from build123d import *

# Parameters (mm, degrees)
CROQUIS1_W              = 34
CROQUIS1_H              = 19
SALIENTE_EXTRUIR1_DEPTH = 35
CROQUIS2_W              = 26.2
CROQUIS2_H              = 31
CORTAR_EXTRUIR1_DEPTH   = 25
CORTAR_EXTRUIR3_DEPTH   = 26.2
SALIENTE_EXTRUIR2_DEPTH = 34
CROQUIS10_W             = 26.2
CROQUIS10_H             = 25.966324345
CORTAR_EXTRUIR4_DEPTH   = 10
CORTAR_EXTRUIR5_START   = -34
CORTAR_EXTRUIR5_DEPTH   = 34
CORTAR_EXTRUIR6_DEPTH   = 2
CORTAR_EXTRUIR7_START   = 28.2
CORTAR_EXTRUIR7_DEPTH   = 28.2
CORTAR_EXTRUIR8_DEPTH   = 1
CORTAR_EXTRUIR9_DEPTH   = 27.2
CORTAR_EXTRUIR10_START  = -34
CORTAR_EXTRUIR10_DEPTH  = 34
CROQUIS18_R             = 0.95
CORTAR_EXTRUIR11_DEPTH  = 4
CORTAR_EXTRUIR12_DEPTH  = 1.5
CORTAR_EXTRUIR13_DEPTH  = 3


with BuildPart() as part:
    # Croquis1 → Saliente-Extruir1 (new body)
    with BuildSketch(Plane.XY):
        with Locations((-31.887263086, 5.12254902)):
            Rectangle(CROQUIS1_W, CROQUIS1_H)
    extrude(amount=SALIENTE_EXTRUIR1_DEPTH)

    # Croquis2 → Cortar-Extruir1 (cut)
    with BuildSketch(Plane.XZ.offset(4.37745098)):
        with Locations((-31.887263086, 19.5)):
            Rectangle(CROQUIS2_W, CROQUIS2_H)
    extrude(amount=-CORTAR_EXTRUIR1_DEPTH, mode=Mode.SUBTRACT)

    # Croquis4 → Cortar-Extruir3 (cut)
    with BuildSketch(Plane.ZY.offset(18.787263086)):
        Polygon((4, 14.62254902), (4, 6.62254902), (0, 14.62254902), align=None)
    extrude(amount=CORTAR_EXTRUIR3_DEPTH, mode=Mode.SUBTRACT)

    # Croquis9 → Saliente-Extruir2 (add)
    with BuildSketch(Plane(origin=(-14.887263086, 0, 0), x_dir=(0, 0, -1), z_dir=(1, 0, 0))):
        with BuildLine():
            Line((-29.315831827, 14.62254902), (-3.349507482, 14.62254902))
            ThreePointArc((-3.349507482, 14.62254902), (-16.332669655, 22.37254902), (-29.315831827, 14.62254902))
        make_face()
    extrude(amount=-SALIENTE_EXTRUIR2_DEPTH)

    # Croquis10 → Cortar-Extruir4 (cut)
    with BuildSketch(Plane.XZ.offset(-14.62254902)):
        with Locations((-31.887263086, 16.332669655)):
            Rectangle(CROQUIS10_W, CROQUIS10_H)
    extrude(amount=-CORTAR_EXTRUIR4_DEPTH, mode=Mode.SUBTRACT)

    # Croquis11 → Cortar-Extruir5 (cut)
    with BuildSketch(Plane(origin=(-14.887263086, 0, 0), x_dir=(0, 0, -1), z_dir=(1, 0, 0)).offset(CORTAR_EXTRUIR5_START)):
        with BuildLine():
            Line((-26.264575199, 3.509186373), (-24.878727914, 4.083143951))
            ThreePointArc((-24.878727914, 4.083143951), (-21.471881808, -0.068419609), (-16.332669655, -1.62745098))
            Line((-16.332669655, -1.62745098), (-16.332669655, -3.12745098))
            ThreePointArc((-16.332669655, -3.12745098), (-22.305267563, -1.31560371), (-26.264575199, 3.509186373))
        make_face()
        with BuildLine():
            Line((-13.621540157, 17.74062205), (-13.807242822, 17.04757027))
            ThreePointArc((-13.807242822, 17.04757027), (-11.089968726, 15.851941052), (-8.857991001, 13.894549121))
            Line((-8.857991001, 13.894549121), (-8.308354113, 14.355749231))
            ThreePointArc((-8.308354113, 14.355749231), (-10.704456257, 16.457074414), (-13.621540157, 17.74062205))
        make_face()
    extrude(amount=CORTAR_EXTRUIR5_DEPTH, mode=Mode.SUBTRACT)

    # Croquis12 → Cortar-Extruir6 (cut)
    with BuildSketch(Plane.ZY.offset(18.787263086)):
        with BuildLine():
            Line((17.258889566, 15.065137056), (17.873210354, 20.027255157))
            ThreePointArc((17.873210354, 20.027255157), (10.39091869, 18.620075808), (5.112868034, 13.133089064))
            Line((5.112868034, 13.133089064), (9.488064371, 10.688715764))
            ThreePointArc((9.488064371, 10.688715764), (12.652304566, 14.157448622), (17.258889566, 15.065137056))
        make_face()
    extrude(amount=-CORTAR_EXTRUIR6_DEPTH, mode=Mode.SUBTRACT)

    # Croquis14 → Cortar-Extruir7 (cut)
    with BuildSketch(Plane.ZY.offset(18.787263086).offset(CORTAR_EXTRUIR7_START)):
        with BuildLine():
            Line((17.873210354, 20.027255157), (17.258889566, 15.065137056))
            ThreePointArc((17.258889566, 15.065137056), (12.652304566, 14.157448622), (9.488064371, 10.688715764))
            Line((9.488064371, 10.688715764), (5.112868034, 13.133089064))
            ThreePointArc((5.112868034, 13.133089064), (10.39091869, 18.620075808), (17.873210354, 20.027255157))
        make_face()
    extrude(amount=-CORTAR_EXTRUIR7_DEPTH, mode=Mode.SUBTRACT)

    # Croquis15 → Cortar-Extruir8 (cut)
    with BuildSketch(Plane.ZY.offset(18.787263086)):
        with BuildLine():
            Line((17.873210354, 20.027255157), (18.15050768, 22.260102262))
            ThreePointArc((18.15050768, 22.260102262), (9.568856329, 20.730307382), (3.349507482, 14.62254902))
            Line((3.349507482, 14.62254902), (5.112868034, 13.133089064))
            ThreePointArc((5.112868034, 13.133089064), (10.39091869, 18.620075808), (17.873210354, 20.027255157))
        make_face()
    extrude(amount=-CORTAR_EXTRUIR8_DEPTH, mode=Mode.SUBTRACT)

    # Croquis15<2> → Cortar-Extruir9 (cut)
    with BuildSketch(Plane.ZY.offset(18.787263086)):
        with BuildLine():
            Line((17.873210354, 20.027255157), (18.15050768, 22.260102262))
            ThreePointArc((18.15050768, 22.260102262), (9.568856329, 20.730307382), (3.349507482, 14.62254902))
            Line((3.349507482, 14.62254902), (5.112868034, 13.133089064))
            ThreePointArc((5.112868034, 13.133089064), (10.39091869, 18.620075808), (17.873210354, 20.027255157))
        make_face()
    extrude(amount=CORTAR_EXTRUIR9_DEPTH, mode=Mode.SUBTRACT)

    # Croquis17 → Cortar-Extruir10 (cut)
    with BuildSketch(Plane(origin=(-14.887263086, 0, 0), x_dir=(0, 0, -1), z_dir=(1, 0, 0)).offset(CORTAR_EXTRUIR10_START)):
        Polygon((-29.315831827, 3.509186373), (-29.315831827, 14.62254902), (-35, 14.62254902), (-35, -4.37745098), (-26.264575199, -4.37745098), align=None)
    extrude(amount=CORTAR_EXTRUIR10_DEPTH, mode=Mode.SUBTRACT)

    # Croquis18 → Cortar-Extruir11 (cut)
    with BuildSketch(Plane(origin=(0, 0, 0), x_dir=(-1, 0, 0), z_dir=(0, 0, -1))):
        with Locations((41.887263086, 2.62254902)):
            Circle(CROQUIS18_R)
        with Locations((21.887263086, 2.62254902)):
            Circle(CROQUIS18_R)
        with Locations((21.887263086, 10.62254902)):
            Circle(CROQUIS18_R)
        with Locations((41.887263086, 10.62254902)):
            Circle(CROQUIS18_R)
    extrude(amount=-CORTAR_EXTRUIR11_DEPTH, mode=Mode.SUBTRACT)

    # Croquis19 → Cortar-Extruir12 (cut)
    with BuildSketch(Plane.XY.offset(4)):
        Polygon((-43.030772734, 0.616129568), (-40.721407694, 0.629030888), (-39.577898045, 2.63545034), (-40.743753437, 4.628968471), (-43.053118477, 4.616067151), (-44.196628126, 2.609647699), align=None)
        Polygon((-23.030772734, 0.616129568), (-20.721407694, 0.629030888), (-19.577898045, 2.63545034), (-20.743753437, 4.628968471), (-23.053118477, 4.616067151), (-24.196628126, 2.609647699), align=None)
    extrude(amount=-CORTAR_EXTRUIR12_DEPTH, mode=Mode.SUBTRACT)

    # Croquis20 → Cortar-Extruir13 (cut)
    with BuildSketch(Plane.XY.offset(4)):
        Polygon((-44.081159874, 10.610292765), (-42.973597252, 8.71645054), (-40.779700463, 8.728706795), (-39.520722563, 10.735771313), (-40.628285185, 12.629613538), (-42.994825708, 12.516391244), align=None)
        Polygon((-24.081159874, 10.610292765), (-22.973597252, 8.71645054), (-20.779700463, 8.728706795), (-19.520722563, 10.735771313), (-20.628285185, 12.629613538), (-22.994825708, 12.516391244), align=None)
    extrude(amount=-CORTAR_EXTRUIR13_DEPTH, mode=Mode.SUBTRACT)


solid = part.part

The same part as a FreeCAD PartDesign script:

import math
import FreeCAD as App
import Part
import Sketcher

V = App.Vector
Q = App.Units.Quantity


def add_polygon(sketch, points):
    """Adds a closed chain of lines whose ends are joined by coincident constraints."""
    first, n = sketch.GeometryCount, len(points)
    for a, b in zip(points, points[1:] + points[:1]):
        sketch.addGeometry(Part.LineSegment(App.Vector(*a, 0), App.Vector(*b, 0)), False)
    for i in range(n):
        sketch.addConstraint(Sketcher.Constraint("Coincident", first + i, 2, first + (i + 1) % n, 1))

doc = App.newDocument("Part")
body = doc.addObject("PartDesign::Body", "Body")

# Sketch on XY plane
sketch1 = body.newObject("Sketcher::SketchObject", "Sketch")
sketch1.AttachmentSupport = (doc.getObject("XY_Plane"), [""])
sketch1.MapMode = "FlatFace"
add_polygon(sketch1, [(-49, 15), (-49, -4), (-15, -4), (-15, 15)])  # lines 0-3
sketch1.addConstraint([
    Sketcher.Constraint("Vertical", 0),
    Sketcher.Constraint("Horizontal", 1),
    Sketcher.Constraint("Vertical", 2),
    Sketcher.Constraint("Horizontal", 3),
    Sketcher.Constraint("DistanceX", 1, 1, 1, 2, Q("34 mm")),
    Sketcher.Constraint("DistanceY", 0, 2, 0, 1, Q("19 mm")),
    Sketcher.Constraint("DistanceY", 0, 2, -1, 1, Q("4.377451 mm")),
    Sketcher.Constraint("DistanceX", 0, 2, -1, 1, Q("48.887263 mm")),
])
pad1 = body.newObject("PartDesign::Pad", "Pad")
pad1.Profile = sketch1
pad1.Length = 35

# Sketch on XZ plane
sketch2 = body.newObject("Sketcher::SketchObject", "Sketch001")
sketch2.AttachmentSupport = (doc.getObject("XZ_Plane"), [""])
sketch2.MapMode = "FlatFace"
sketch2.AttachmentOffset = App.Placement(V(0, 0, 4.377451), App.Rotation())
add_polygon(sketch2, [(-45, 35), (-45, 4), (-19, 4), (-19, 35)])  # lines 0-3
sketch2.addConstraint([
    Sketcher.Constraint("Vertical", 0),
    Sketcher.Constraint("Horizontal", 1),
    Sketcher.Constraint("Vertical", 2),
    Sketcher.Constraint("Horizontal", 3),
    Sketcher.Constraint("DistanceY", 0, 2, 0, 1, Q("31 mm")),
    Sketcher.Constraint("DistanceX", 1, 1, 1, 2, Q("26.2 mm")),
    Sketcher.Constraint("DistanceY", -1, 1, 0, 2, Q("4 mm")),
    Sketcher.Constraint("DistanceX", 0, 2, -1, 1, Q("44.987263 mm")),
])
pocket1 = body.newObject("PartDesign::Pocket", "Pocket")
pocket1.Profile = sketch2
pocket1.Length = 25

# Sketch on YZ plane
sketch3 = body.newObject("Sketcher::SketchObject", "Sketch002")
sketch3.AttachmentSupport = (doc.getObject("YZ_Plane"), [""])
sketch3.MapMode = "FlatFace"
sketch3.AttachmentOffset = App.Placement(V(0, 0, -18.787263), App.Rotation())
add_polygon(sketch3, [(6.6, 4), (14.6, 4), (14.6, 0)])  # lines 0-2
sketch3.addConstraint([
    Sketcher.Constraint("Horizontal", 0),
    Sketcher.Constraint("Vertical", 1),
    Sketcher.Constraint("PointOnObject", 1, 2, -1),
    Sketcher.Constraint("DistanceX", 0, 1, 0, 2, Q("8 mm")),
    Sketcher.Constraint("DistanceY", 1, 2, 1, 1, Q("4 mm")),
    Sketcher.Constraint("DistanceX", -1, 1, 0, 2, Q("14.622549 mm")),
])
pocket2 = body.newObject("PartDesign::Pocket", "Pocket001")
pocket2.Profile = sketch3
pocket2.Length = 26.2

# Sketch on YZ plane
sketch4 = body.newObject("Sketcher::SketchObject", "Sketch003")
sketch4.AttachmentSupport = (doc.getObject("YZ_Plane"), [""])
sketch4.MapMode = "FlatFace"
sketch4.AttachmentOffset = App.Placement(V(0, 0, -14.887263), App.Rotation())
sketch4.addGeometry([
    Part.LineSegment(V(15, 29, 0), V(15, 3, 0)),
    Part.ArcOfCircle(Part.Circle(V(8, 16, 0), V(0, 0, 1), 15), math.radians(-62), math.radians(62)),
], False)
sketch4.addConstraint([
    Sketcher.Constraint("Coincident", 0, 1, 1, 2),
    Sketcher.Constraint("Coincident", 1, 1, 0, 2),
    Sketcher.Constraint("Vertical", 0),
    Sketcher.Constraint("Radius", 1, Q("14.75 mm")),
    Sketcher.Constraint("DistanceX", 1, 3, 0, 1, Q("7 mm")),
    Sketcher.Constraint("DistanceX", -1, 1, 1, 3, Q("7.622549 mm")),
    Sketcher.Constraint("DistanceY", -1, 1, 1, 3, Q("16.33267 mm")),
])
pad2 = body.newObject("PartDesign::Pad", "Pad001")
pad2.Profile = sketch4
pad2.Length = 34
pad2.Reversed = True

# Sketch on XZ plane
sketch5 = body.newObject("Sketcher::SketchObject", "Sketch004")
sketch5.AttachmentSupport = (doc.getObject("XZ_Plane"), [""])
sketch5.MapMode = "FlatFace"
sketch5.AttachmentOffset = App.Placement(V(0, 0, -14.622549), App.Rotation())
add_polygon(sketch5, [(-45, 29), (-45, 3), (-19, 3), (-19, 29)])  # lines 0-3
sketch5.addConstraint([
    Sketcher.Constraint("Vertical", 0),
    Sketcher.Constraint("Horizontal", 1),
    Sketcher.Constraint("Vertical", 2),
    Sketcher.Constraint("Horizontal", 3),
    Sketcher.Constraint("DistanceX", 1, 1, 1, 2, Q("26.2 mm")),
    Sketcher.Constraint("DistanceY", 0, 2, 0, 1, Q("25.966324 mm")),
    Sketcher.Constraint("DistanceY", -1, 1, 2, 2, Q("29.315832 mm")),
    Sketcher.Constraint("DistanceX", 0, 2, -1, 1, Q("44.987263 mm")),
])
pocket3 = body.newObject("PartDesign::Pocket", "Pocket002")
pocket3.Profile = sketch5
pocket3.Length = 10

# Sketch on YZ plane
sketch6 = body.newObject("Sketcher::SketchObject", "Sketch005")
sketch6.AttachmentSupport = (doc.getObject("YZ_Plane"), [""])
sketch6.MapMode = "FlatFace"
sketch6.AttachmentOffset = App.Placement(V(0, 0, -48.887263), App.Rotation())
sketch6.addGeometry([
    Part.LineSegment(V(4.1, 24.9, 0), V(3.5, 26.3, 0)),  # 0
    Part.ArcOfCircle(Part.Circle(V(7.6, 16.3, 0), V(0, 0, 1), 10.8), math.radians(112), math.radians(180)),  # 1
    Part.LineSegment(V(-3.1, 16.3, 0), V(-1.6, 16.3, 0)),  # 2
    Part.ArcOfCircle(Part.Circle(V(7.6, 16.3, 0), V(0, 0, 1), 9.2), math.radians(112), math.radians(180)),  # 3
    Part.LineSegment(V(17.7, 13.6, 0), V(17, 13.8, 0)),  # 4
    Part.ArcOfCircle(Part.Circle(V(7.6, 16.3, 0), V(0, 0, 1), 9.8), math.radians(-50), math.radians(-15)),  # 5
    Part.LineSegment(V(13.9, 8.9, 0), V(14.4, 8.3, 0)),  # 6
    Part.ArcOfCircle(Part.Circle(V(7.6, 16.3, 0), V(0, 0, 1), 10.5), math.radians(-50), math.radians(-15)),  # 7
], False)
sketch6.addConstraint([
    Sketcher.Constraint("Coincident", 0, 2, 1, 1),
    Sketcher.Constraint("Coincident", 1, 2, 2, 1),
    Sketcher.Constraint("Coincident", 2, 2, 3, 2),
    Sketcher.Constraint("Coincident", 3, 1, 0, 1),
    Sketcher.Constraint("Coincident", 4, 2, 5, 2),
    Sketcher.Constraint("Coincident", 5, 1, 6, 1),
    Sketcher.Constraint("Coincident", 6, 2, 7, 1),
    Sketcher.Constraint("Coincident", 7, 2, 4, 1),
    Sketcher.Constraint("Horizontal", 2),
    Sketcher.Constraint("Coincident", 3, 3, 1, 3),
    Sketcher.Constraint("Coincident", 5, 3, 1, 3),
    Sketcher.Constraint("Coincident", 7, 3, 1, 3),
    Sketcher.Constraint("Horizontal", 7, 3, 1, 2),
    Sketcher.Constraint("Angle", 4, Q("165 deg")),
    Sketcher.Constraint("Angle", 6, Q("-50 deg")),
    Sketcher.Constraint("Radius", 1, Q("10.75 mm")),
    Sketcher.Constraint("Radius", 3, Q("9.25 mm")),
    Sketcher.Constraint("Radius", 7, Q("10.475 mm")),
    Sketcher.Constraint("Radius", 5, Q("9.7575 mm")),
    Sketcher.Constraint("DistanceX", 1, 3, 5, 1, Q("6.272 mm")),
    Sketcher.Constraint("DistanceX", -1, 1, 1, 3, Q("7.622549 mm")),
    Sketcher.Constraint("DistanceY", -1, 1, 1, 3, Q("16.33267 mm")),
    Sketcher.Constraint("DistanceX", -1, 1, 4, 2, Q("17.04757 mm")),
    Sketcher.Constraint("DistanceY", 7, 3, 3, 1, Q("8.546058 mm")),
    Sketcher.Constraint("DistanceX", -1, 1, 0, 2, Q("3.509186 mm")),
])
pocket4 = body.newObject("PartDesign::Pocket", "Pocket003")
pocket4.Profile = sketch6
pocket4.Length = 34
pocket4.Reversed = True

# Sketch on YZ plane
sketch7 = body.newObject("Sketcher::SketchObject", "Sketch006")
sketch7.AttachmentSupport = (doc.getObject("YZ_Plane"), [""])
sketch7.MapMode = "FlatFace"
sketch7.AttachmentOffset = App.Placement(V(0, 0, -18.787263), App.Rotation())
sketch7.addGeometry([
    Part.LineSegment(V(15, 17, 0), V(20, 18, 0)),
    Part.ArcOfCircle(Part.Circle(V(8, 16, 0), V(0, 0, 1), 13), math.radians(-64), math.radians(7)),
    Part.LineSegment(V(13, 5, 0), V(11, 9, 0)),
    Part.ArcOfCircle(Part.Circle(V(8, 16, 0), V(0, 0, 1), 8), math.radians(-66), math.radians(7)),
], False)
sketch7.addConstraint([
    Sketcher.Constraint("Coincident", 0, 2, 1, 2),
    Sketcher.Constraint("Coincident", 1, 1, 2, 1),
    Sketcher.Constraint("Coincident", 2, 2, 3, 1),
    Sketcher.Constraint("Coincident", 3, 2, 0, 1),
    Sketcher.Constraint("Coincident", 3, 3, 1, 3),
    Sketcher.Constraint("Radius", 1, Q("12.5 mm")),
    Sketcher.Constraint("Radius", 3, Q("7.5 mm")),
    Sketcher.Constraint("DistanceY", 1, 1, 3, 3, Q("11.219802 mm")),
    Sketcher.Constraint("DistanceX", -1, 1, 1, 3, Q("7.622549 mm")),
    Sketcher.Constraint("DistanceY", -1, 1, 1, 3, Q("16.33267 mm")),
    Sketcher.Constraint("DistanceY", -1, 1, 0, 2, Q("17.87321 mm")),
    Sketcher.Constraint("DistanceY", -1, 1, 3, 2, Q("17.25889 mm")),
    Sketcher.Constraint("DistanceX", 2, 2, 0, 2, Q("9.338539 mm")),
])
pocket5 = body.newObject("PartDesign::Pocket", "Pocket004")
pocket5.Profile = sketch7
pocket5.Length = 2
pocket5.Reversed = True

# Sketch on YZ plane
sketch8 = body.newObject("Sketcher::SketchObject", "Sketch007")
sketch8.AttachmentSupport = (doc.getObject("YZ_Plane"), [""])
sketch8.MapMode = "FlatFace"
sketch8.AttachmentOffset = App.Placement(V(0, 0, -46.987263), App.Rotation())
sketch8.addGeometry([
    Part.LineSegment(V(15, 17, 0), V(20, 18, 0)),
    Part.ArcOfCircle(Part.Circle(V(8, 16, 0), V(0, 0, 1), 13), math.radians(-64), math.radians(7)),
    Part.LineSegment(V(13, 5, 0), V(11, 9, 0)),
    Part.ArcOfCircle(Part.Circle(V(8, 16, 0), V(0, 0, 1), 8), math.radians(-66), math.radians(7)),
], False)
sketch8.addConstraint([
    Sketcher.Constraint("Coincident", 0, 2, 1, 2),
    Sketcher.Constraint("Coincident", 1, 1, 2, 1),
    Sketcher.Constraint("Coincident", 2, 2, 3, 1),
    Sketcher.Constraint("Coincident", 3, 2, 0, 1),
    Sketcher.Constraint("Coincident", 3, 3, 1, 3),
    Sketcher.Constraint("Radius", 1, Q("12.5 mm")),
    Sketcher.Constraint("Radius", 3, Q("7.5 mm")),
    Sketcher.Constraint("DistanceY", 1, 1, 3, 3, Q("11.219802 mm")),
    Sketcher.Constraint("DistanceX", -1, 1, 1, 3, Q("7.622549 mm")),
    Sketcher.Constraint("DistanceY", -1, 1, 1, 3, Q("16.33267 mm")),
    Sketcher.Constraint("DistanceY", -1, 1, 0, 2, Q("17.87321 mm")),
    Sketcher.Constraint("DistanceY", -1, 1, 3, 2, Q("17.25889 mm")),
    Sketcher.Constraint("DistanceX", 2, 2, 0, 2, Q("9.338539 mm")),
])
pocket6 = body.newObject("PartDesign::Pocket", "Pocket005")
pocket6.Profile = sketch8
pocket6.Length = 28.2
pocket6.Reversed = True

# Sketch on YZ plane
sketch9 = body.newObject("Sketcher::SketchObject", "Sketch008")
sketch9.AttachmentSupport = (doc.getObject("YZ_Plane"), [""])
sketch9.MapMode = "FlatFace"
sketch9.AttachmentOffset = App.Placement(V(0, 0, -18.787263), App.Rotation())
sketch9.addGeometry([
    Part.LineSegment(V(20, 17.9, 0), V(22.3, 18.2, 0)),
    Part.ArcOfCircle(Part.Circle(V(7.6, 16.3, 0), V(0, 0, 1), 14.8), math.radians(-62), math.radians(7)),
    Part.LineSegment(V(14.6, 3.3, 0), V(13.1, 5.1, 0)),
    Part.ArcOfCircle(Part.Circle(V(7.6, 16.3, 0), V(0, 0, 1), 12.5), math.radians(-64), math.radians(7)),
], False)
sketch9.addConstraint([
    Sketcher.Constraint("Coincident", 0, 2, 1, 2),
    Sketcher.Constraint("Coincident", 1, 1, 2, 1),
    Sketcher.Constraint("Coincident", 2, 2, 3, 1),
    Sketcher.Constraint("Coincident", 3, 2, 0, 1),
    Sketcher.Constraint("Coincident", 3, 3, 1, 3),
    Sketcher.Constraint("Radius", 3, Q("12.5 mm")),
    Sketcher.Constraint("Radius", 1, Q("14.75 mm")),
    Sketcher.Constraint("DistanceX", 3, 3, 1, 1, Q("7 mm")),
    Sketcher.Constraint("DistanceY", 1, 1, 0, 2, Q("14.801 mm")),
    Sketcher.Constraint("DistanceY", 2, 2, 3, 3, Q("11.219802 mm")),
    Sketcher.Constraint("DistanceX", -1, 1, 1, 3, Q("7.622549 mm")),
    Sketcher.Constraint("DistanceY", -1, 1, 1, 3, Q("16.33267 mm")),
    Sketcher.Constraint("DistanceY", -1, 1, 3, 2, Q("17.87321 mm")),
])
pocket7 = body.newObject("PartDesign::Pocket", "Pocket006")
pocket7.Profile = sketch9
pocket7.Length = 1
pocket7.Reversed = True

# Sketch on YZ plane
sketch10 = body.newObject("Sketcher::SketchObject", "Sketch009")
sketch10.AttachmentSupport = (doc.getObject("YZ_Plane"), [""])
sketch10.MapMode = "FlatFace"
sketch10.AttachmentOffset = App.Placement(V(0, 0, -18.787263), App.Rotation())
sketch10.addGeometry([
    Part.LineSegment(V(20, 17.9, 0), V(22.3, 18.2, 0)),
    Part.ArcOfCircle(Part.Circle(V(7.6, 16.3, 0), V(0, 0, 1), 14.8), math.radians(-62), math.radians(7)),
    Part.LineSegment(V(14.6, 3.3, 0), V(13.1, 5.1, 0)),
    Part.ArcOfCircle(Part.Circle(V(7.6, 16.3, 0), V(0, 0, 1), 12.5), math.radians(-64), math.radians(7)),
], False)
sketch10.addConstraint([
    Sketcher.Constraint("Coincident", 0, 2, 1, 2),
    Sketcher.Constraint("Coincident", 1, 1, 2, 1),
    Sketcher.Constraint("Coincident", 2, 2, 3, 1),
    Sketcher.Constraint("Coincident", 3, 2, 0, 1),
    Sketcher.Constraint("Coincident", 3, 3, 1, 3),
    Sketcher.Constraint("Radius", 3, Q("12.5 mm")),
    Sketcher.Constraint("Radius", 1, Q("14.75 mm")),
    Sketcher.Constraint("DistanceX", 3, 3, 1, 1, Q("7 mm")),
    Sketcher.Constraint("DistanceY", 1, 1, 0, 2, Q("14.801 mm")),
    Sketcher.Constraint("DistanceY", 2, 2, 3, 3, Q("11.219802 mm")),
    Sketcher.Constraint("DistanceX", -1, 1, 1, 3, Q("7.622549 mm")),
    Sketcher.Constraint("DistanceY", -1, 1, 1, 3, Q("16.33267 mm")),
    Sketcher.Constraint("DistanceY", -1, 1, 3, 2, Q("17.87321 mm")),
])
pocket8 = body.newObject("PartDesign::Pocket", "Pocket007")
pocket8.Profile = sketch10
pocket8.Length = 27.2

# Sketch on YZ plane
sketch11 = body.newObject("Sketcher::SketchObject", "Sketch010")
sketch11.AttachmentSupport = (doc.getObject("YZ_Plane"), [""])
sketch11.MapMode = "FlatFace"
sketch11.AttachmentOffset = App.Placement(V(0, 0, -48.887263), App.Rotation())
add_polygon(sketch11, [(4, 29), (15, 29), (15, 35), (-4, 35), (-4, 26)])  # lines 0-4
sketch11.addConstraint([
    Sketcher.Constraint("Horizontal", 0),
    Sketcher.Constraint("Vertical", 1),
    Sketcher.Constraint("Horizontal", 2),
    Sketcher.Constraint("Vertical", 3),
    Sketcher.Constraint("DistanceX", 2, 2, 2, 1, Q("19 mm")),
    Sketcher.Constraint("DistanceY", -1, 1, 1, 2, Q("35 mm")),
    Sketcher.Constraint("DistanceY", 1, 1, 1, 2, Q("5.684168 mm")),
    Sketcher.Constraint("DistanceX", 0, 1, 0, 2, Q("11.113363 mm")),
    Sketcher.Constraint("DistanceY", 3, 2, 3, 1, Q("8.735425 mm")),
    Sketcher.Constraint("DistanceX", -1, 1, 0, 2, Q("14.622549 mm")),
])
pocket9 = body.newObject("PartDesign::Pocket", "Pocket008")
pocket9.Profile = sketch11
pocket9.Length = 34
pocket9.Reversed = True

# Sketch on XY plane
sketch12 = body.newObject("Sketcher::SketchObject", "Sketch011")
sketch12.AttachmentSupport = (doc.getObject("XY_Plane"), [""])
sketch12.MapMode = "FlatFace"
sketch12.addGeometry([
    Part.Circle(V(-41.9, 2.6, 0), V(0, 0, 1), 0.9),
    Part.Circle(V(-21.9, 2.6, 0), V(0, 0, 1), 0.9),
    Part.Circle(V(-21.9, 10.6, 0), V(0, 0, 1), 0.9),
    Part.Circle(V(-41.9, 10.6, 0), V(0, 0, 1), 0.9),
], False)
sketch12.addConstraint([
    Sketcher.Constraint("Equal", 0, 1),
    Sketcher.Constraint("Equal", 1, 2),
    Sketcher.Constraint("Equal", 2, 3),
    Sketcher.Constraint("Horizontal", 0, 3, 1, 3),
    Sketcher.Constraint("Horizontal", 2, 3, 3, 3),
    Sketcher.Constraint("Vertical", 1, 3, 2, 3),
    Sketcher.Constraint("Vertical", 0, 3, 3, 3),
    Sketcher.Constraint("Diameter", 0, Q("1.9 mm")),
    Sketcher.Constraint("DistanceX", 0, 3, 1, 3, Q("20 mm")),
    Sketcher.Constraint("DistanceY", 1, 3, 2, 3, Q("8 mm")),
    Sketcher.Constraint("DistanceY", -1, 1, 0, 3, Q("2.622549 mm")),
    Sketcher.Constraint("DistanceX", 0, 3, -1, 1, Q("41.887263 mm")),
])
pocket10 = body.newObject("PartDesign::Pocket", "Pocket009")
pocket10.Profile = sketch12
pocket10.Length = 4
pocket10.Reversed = True

# Sketch on XY plane
sketch13 = body.newObject("Sketcher::SketchObject", "Sketch012")
sketch13.AttachmentSupport = (doc.getObject("XY_Plane"), [""])
sketch13.MapMode = "FlatFace"
sketch13.AttachmentOffset = App.Placement(V(0, 0, 4), App.Rotation())
add_polygon(sketch13, [(-43.030773, 0.61613), (-40.721408, 0.629031), (-39.577898, 2.63545), (-40.743753, 4.628968), (-43.053118, 4.616067), (-44.196628, 2.609648)])  # lines 0-5
add_polygon(sketch13, [(-23.030773, 0.61613), (-20.721408, 0.629031), (-19.577898, 2.63545), (-20.743753, 4.628968), (-23.053118, 4.616067), (-24.196628, 2.609648)])  # lines 6-11
sketch13.addConstraint([
    Sketcher.Constraint("Parallel", 0, 3),
    Sketcher.Constraint("Parallel", 1, 4),
    Sketcher.Constraint("Parallel", 2, 5),
    Sketcher.Constraint("Parallel", 3, 6),
    Sketcher.Constraint("Parallel", 4, 7),
    Sketcher.Constraint("Parallel", 5, 8),
    Sketcher.Constraint("Parallel", 6, 9),
    Sketcher.Constraint("Parallel", 7, 10),
    Sketcher.Constraint("Parallel", 8, 11),
    Sketcher.Constraint("Horizontal", 0, 2, 6, 2),
    Sketcher.Constraint("Horizontal", 1, 2, 7, 2),
    Sketcher.Constraint("Horizontal", 2, 2, 8, 2),
    Sketcher.Constraint("Horizontal", 3, 2, 9, 2),
    Sketcher.Constraint("Horizontal", 4, 2, 10, 2),
    Sketcher.Constraint("Equal", 0, 1),
    Sketcher.Constraint("Equal", 1, 2),
    Sketcher.Constraint("Equal", 2, 3),
    Sketcher.Constraint("DistanceX", 0, 2, 6, 2, Q("20 mm")),
    Sketcher.Constraint("Distance", 0, Q("2.309401 mm")),
    Sketcher.Constraint("DistanceX", 1, 2, -1, 1, Q("39.577898 mm")),
    Sketcher.Constraint("DistanceY", 3, 2, 2, 2, Q("0.012901 mm")),
    Sketcher.Constraint("DistanceY", -1, 1, 0, 2, Q("0.629031 mm")),
    Sketcher.Constraint("DistanceY", -1, 1, 1, 2, Q("2.63545 mm")),
    Sketcher.Constraint("DistanceY", -1, 1, 2, 2, Q("4.628968 mm")),
])
pocket11 = body.newObject("PartDesign::Pocket", "Pocket010")
pocket11.Profile = sketch13
pocket11.Length = 1.5

# Sketch on XY plane
sketch14 = body.newObject("Sketcher::SketchObject", "Sketch013")
sketch14.AttachmentSupport = (doc.getObject("XY_Plane"), [""])
sketch14.MapMode = "FlatFace"
sketch14.AttachmentOffset = App.Placement(V(0, 0, 4), App.Rotation())
add_polygon(sketch14, [(-44.08116, 10.610293), (-42.973597, 8.716451), (-40.7797, 8.728707), (-39.520723, 10.735771), (-40.628285, 12.629614), (-42.994826, 12.516391)])  # lines 0-5
add_polygon(sketch14, [(-24.08116, 10.610293), (-22.973597, 8.716451), (-20.7797, 8.728707), (-19.520723, 10.735771), (-20.628285, 12.629614), (-22.994826, 12.516391)])  # lines 6-11
sketch14.addConstraint([
    Sketcher.Constraint("Parallel", 0, 3),
    Sketcher.Constraint("Parallel", 3, 6),
    Sketcher.Constraint("Parallel", 1, 7),
    Sketcher.Constraint("Parallel", 2, 8),
    Sketcher.Constraint("Parallel", 6, 9),
    Sketcher.Constraint("Parallel", 4, 10),
    Sketcher.Constraint("Parallel", 5, 11),
    Sketcher.Constraint("Horizontal", 0, 2, 6, 2),
    Sketcher.Constraint("Horizontal", 1, 2, 7, 2),
    Sketcher.Constraint("Horizontal", 2, 2, 8, 2),
    Sketcher.Constraint("Horizontal", 3, 2, 9, 2),
    Sketcher.Constraint("Horizontal", 4, 2, 10, 2),
    Sketcher.Constraint("Equal", 0, 1),
    Sketcher.Constraint("Equal", 1, 3),
    Sketcher.Constraint("Equal", 2, 4),
    Sketcher.Constraint("Equal", 3, 5),
    Sketcher.Constraint("DistanceX", 0, 2, 6, 2, Q("20 mm")),
    Sketcher.Constraint("DistanceX", 1, 2, -1, 1, Q("40.7797 mm")),
    Sketcher.Constraint("DistanceY", 5, 2, 4, 2, Q("1.906098 mm")),
    Sketcher.Constraint("Distance", 0, Q("2.193931 mm")),
    Sketcher.Constraint("DistanceY", -1, 1, 0, 2, Q("8.716451 mm")),
    Sketcher.Constraint("DistanceY", -1, 1, 2, 2, Q("10.735771 mm")),
    Sketcher.Constraint("DistanceY", -1, 1, 4, 2, Q("12.516391 mm")),
    Sketcher.Constraint("DistanceX", 4, 2, 3, 2, Q("2.366541 mm")),
])
pocket12 = body.newObject("PartDesign::Pocket", "Pocket011")
pocket12.Profile = sketch14
pocket12.Length = 3

doc.recompute()
